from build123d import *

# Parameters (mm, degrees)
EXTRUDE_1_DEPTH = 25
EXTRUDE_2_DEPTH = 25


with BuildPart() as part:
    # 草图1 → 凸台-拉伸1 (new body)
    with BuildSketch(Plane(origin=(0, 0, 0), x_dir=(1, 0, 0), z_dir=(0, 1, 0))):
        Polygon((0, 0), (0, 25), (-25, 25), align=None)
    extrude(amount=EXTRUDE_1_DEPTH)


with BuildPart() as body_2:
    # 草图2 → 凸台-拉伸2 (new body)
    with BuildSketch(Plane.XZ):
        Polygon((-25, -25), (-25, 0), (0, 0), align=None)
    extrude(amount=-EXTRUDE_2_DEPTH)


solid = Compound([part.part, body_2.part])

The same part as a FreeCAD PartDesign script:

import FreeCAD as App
import Part
import Sketcher

V = App.Vector

doc = App.newDocument("Part")
params = doc.addObject("Spreadsheet::Sheet", "Params")
for row, (alias, value) in enumerate([
    ("sketch1_width", "25 mm"),
    ("pad1_length", "25 mm"),
    ("sketch2_width", "25 mm"),
    ("pad2_length", "25 mm"),
], start=1):
    params.set(f"A{row}", alias)
    params.set(f"B{row}", "=" + value)
    params.setAlias(f"B{row}", alias)

body = doc.addObject("PartDesign::Body", "Body")

sketch1 = doc.addObject("Sketcher::SketchObject", "Sketch")
body.addObject(sketch1)
sketch1.AttachmentSupport = (doc.XZ_Plane, [""])
sketch1.MapMode = "FlatFace"
sketch1.addGeometry([
    Part.LineSegment(V(0, 0, 0), V(0, -25, 0)),
    Part.LineSegment(V(0, -25, 0), V(-25, -25, 0)),
    Part.LineSegment(V(-25, -25, 0), V(0, 0, 0)),
], False)
sketch1.addConstraint([
    Sketcher.Constraint("Coincident", 0, 2, 1, 1),
    Sketcher.Constraint("Coincident", 1, 2, 2, 1),
    Sketcher.Constraint("Coincident", 2, 2, 0, 1),
    Sketcher.Constraint("Vertical", 0),
    Sketcher.Constraint("Horizontal", 1),
    Sketcher.Constraint("Coincident", 2, 2, -1, 1),
    Sketcher.Constraint("Equal", 1, 0),
    Sketcher.Constraint("DistanceX", 1, 2, 1, 1, 25.0),
])
sketch1.setExpression("Constraints[7]", "Params.sketch1_width")
pad1 = doc.addObject("PartDesign::Pad", "Pad")
body.addObject(pad1)
pad1.Profile = sketch1
pad1.setExpression("Length", "Params.pad1_length")
pad1.Reversed = True
body2 = doc.addObject("PartDesign::Body", "Body001")

sketch2 = doc.addObject("Sketcher::SketchObject", "Sketch001")
body2.addObject(sketch2)
sketch2.AttachmentSupport = (doc.getObject("XZ_Plane001"), [""])
sketch2.MapMode = "FlatFace"
sketch2.addGeometry([
    Part.LineSegment(V(-25, 0, 0), V(-25, -25, 0)),
    Part.LineSegment(V(-25, -25, 0), V(0, 0, 0)),
    Part.LineSegment(V(0, 0, 0), V(-25, 0, 0)),
], False)
sketch2.addConstraint([
    Sketcher.Constraint("Coincident", 0, 2, 1, 1),
    Sketcher.Constraint("Coincident", 1, 2, 2, 1),
    Sketcher.Constraint("Coincident", 2, 2, 0, 1),
    Sketcher.Constraint("Vertical", 0),
    Sketcher.Constraint("Horizontal", 2),
    Sketcher.Constraint("Coincident", 1, 2, -1, 1),
    Sketcher.Constraint("Equal", 2, 0),
    Sketcher.Constraint("DistanceX", 2, 2, 2, 1, 25.0),
])
sketch2.setExpression("Constraints[7]", "Params.sketch2_width")
pad2 = doc.addObject("PartDesign::Pad", "Pad001")
body2.addObject(pad2)
pad2.Profile = sketch2
pad2.setExpression("Length", "Params.pad2_length")
pad2.Reversed = True

doc.recompute()
